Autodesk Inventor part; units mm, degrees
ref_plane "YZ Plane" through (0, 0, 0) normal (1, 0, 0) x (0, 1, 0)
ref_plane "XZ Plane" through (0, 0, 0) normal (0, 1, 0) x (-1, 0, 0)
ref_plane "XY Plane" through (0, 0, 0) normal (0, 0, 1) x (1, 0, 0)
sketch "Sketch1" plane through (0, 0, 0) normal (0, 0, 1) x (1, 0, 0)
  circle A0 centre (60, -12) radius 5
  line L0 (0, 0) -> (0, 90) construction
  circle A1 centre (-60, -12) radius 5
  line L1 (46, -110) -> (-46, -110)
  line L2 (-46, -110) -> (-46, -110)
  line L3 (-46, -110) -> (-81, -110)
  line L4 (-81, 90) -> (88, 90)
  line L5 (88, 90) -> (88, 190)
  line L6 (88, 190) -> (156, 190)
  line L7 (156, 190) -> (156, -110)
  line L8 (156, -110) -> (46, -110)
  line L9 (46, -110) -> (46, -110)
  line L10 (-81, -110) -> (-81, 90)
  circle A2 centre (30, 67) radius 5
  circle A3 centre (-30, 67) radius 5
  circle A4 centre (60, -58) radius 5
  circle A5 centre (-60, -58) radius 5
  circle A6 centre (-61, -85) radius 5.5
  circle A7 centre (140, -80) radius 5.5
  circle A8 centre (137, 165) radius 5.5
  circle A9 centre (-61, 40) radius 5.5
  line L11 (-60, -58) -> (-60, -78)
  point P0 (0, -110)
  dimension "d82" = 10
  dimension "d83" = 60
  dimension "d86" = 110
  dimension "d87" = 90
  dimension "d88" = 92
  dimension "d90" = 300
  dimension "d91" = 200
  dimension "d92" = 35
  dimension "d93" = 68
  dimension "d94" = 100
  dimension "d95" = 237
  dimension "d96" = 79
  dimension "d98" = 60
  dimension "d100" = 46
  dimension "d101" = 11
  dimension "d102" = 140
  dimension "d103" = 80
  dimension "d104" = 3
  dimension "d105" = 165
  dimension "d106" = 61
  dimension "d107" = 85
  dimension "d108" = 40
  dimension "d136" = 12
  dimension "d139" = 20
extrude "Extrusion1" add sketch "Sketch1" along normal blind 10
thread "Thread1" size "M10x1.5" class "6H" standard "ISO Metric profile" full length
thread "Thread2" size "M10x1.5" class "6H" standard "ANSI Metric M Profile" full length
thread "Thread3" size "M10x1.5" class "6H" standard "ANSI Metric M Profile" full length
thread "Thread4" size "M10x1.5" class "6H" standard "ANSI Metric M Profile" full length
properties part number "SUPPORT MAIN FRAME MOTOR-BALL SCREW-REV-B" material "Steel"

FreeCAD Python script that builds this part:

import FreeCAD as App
import Part
import Sketcher

V = App.Vector

doc = App.newDocument("Part")
body = doc.addObject("PartDesign::Body", "Body")

sketch1 = body.newObject("Sketcher::SketchObject", "Sketch")
sketch1.AttachmentSupport = (doc.getObject("XY_Plane"), [""])
sketch1.MapMode = "FlatFace"
sketch1.addGeometry(Part.LineSegment(V(-81, -110, 0), V(156, -110, 0)), False)
sketch1.addGeometry(Part.LineSegment(V(156, -110, 0), V(156, 190, 0)), False)
sketch1.addGeometry(Part.LineSegment(V(156, 190, 0), V(88, 190, 0)), False)
sketch1.addGeometry(Part.LineSegment(V(88, 190, 0), V(88, 90, 0)), False)
sketch1.addGeometry(Part.LineSegment(V(88, 90, 0), V(-81, 90, 0)), False)
sketch1.addGeometry(Part.LineSegment(V(-81, 90, 0), V(-81, -110, 0)), False)
sketch1.addGeometry(Part.Circle(V(-61, -85, 0), V(0, 0, 1), 6), False)
sketch1.addGeometry(Part.Circle(V(-60, -58, 0), V(0, 0, 1), 5), False)
sketch1.addGeometry(Part.Circle(V(-60, -12, 0), V(0, 0, 1), 5), False)
sketch1.addGeometry(Part.Circle(V(60, -58, 0), V(0, 0, 1), 5), False)
sketch1.addGeometry(Part.Circle(V(140, -80, 0), V(0, 0, 1), 6), False)
sketch1.addGeometry(Part.Circle(V(60, -12, 0), V(0, 0, 1), 5), False)
sketch1.addGeometry(Part.Circle(V(-61, 40, 0), V(0, 0, 1), 6), False)
sketch1.addGeometry(Part.Circle(V(-30, 67, 0), V(0, 0, 1), 5), False)
sketch1.addGeometry(Part.Circle(V(30, 67, 0), V(0, 0, 1), 5), False)
sketch1.addGeometry(Part.Circle(V(137, 165, 0), V(0, 0, 1), 6), False)
sketch1.addConstraint(Sketcher.Constraint("Coincident", 0, 2, 1, 1))
sketch1.addConstraint(Sketcher.Constraint("Coincident", 1, 2, 2, 1))
sketch1.addConstraint(Sketcher.Constraint("Coincident", 2, 2, 3, 1))
sketch1.addConstraint(Sketcher.Constraint("Coincident", 3, 2, 4, 1))
sketch1.addConstraint(Sketcher.Constraint("Coincident", 4, 2, 5, 1))
sketch1.addConstraint(Sketcher.Constraint("Coincident", 5, 2, 0, 1))
sketch1.addConstraint(Sketcher.Constraint("Horizontal", 0))
sketch1.addConstraint(Sketcher.Constraint("Vertical", 1))
sketch1.addConstraint(Sketcher.Constraint("Horizontal", 2))
sketch1.addConstraint(Sketcher.Constraint("Vertical", 3))
sketch1.addConstraint(Sketcher.Constraint("Horizontal", 4))
sketch1.addConstraint(Sketcher.Constraint("Vertical", 5))
sketch1.addConstraint(Sketcher.Constraint("Equal", 7, 8))
sketch1.addConstraint(Sketcher.Constraint("Equal", 8, 9))
sketch1.addConstraint(Sketcher.Constraint("Equal", 6, 10))
sketch1.addConstraint(Sketcher.Constraint("Equal", 9, 11))
sketch1.addConstraint(Sketcher.Constraint("Equal", 10, 12))
sketch1.addConstraint(Sketcher.Constraint("Equal", 11, 13))
sketch1.addConstraint(Sketcher.Constraint("Equal", 13, 14))
sketch1.addConstraint(Sketcher.Constraint("Equal", 12, 15))
sketch1.addConstraint(Sketcher.Constraint("Symmetric", 7, 3, 9, 3, -2))
sketch1.addConstraint(Sketcher.Constraint("Symmetric", 8, 3, 11, 3, -2))
sketch1.addConstraint(Sketcher.Constraint("Symmetric", 13, 3, 14, 3, -2))
sketch1.addConstraint(Sketcher.Constraint("Vertical", 7, 3, 8, 3))
sketch1.addConstraint(Sketcher.Constraint("Vertical", 6, 3, 12, 3))
sketch1.addConstraint(Sketcher.Constraint("Diameter", 6, 11.0))
sketch1.addConstraint(Sketcher.Constraint("Diameter", 7, 10.0))
sketch1.addConstraint(Sketcher.Constraint("DistanceX", 0, 1, 0, 2, 237.0))
sketch1.addConstraint(Sketcher.Constraint("DistanceX", 2, 2, 2, 1, 68.0))
sketch1.addConstraint(Sketcher.Constraint("DistanceY", 1, 1, 1, 2, 300.0))
sketch1.addConstraint(Sketcher.Constraint("DistanceY", 3, 2, 3, 1, 100.0))
sketch1.addConstraint(Sketcher.Constraint("DistanceX", 6, 3, -1, 1, 61.0))
sketch1.addConstraint(Sketcher.Constraint("DistanceY", 6, 3, -1, 1, 85.0))
sketch1.addConstraint(Sketcher.Constraint("DistanceX", 7, 3, -1, 1, 60.0))
sketch1.addConstraint(Sketcher.Constraint("DistanceY", 8, 3, -1, 1, 12.0))
sketch1.addConstraint(Sketcher.Constraint("DistanceX", -1, 1, 10, 3, 140.0))
sketch1.addConstraint(Sketcher.Constraint("DistanceY", 10, 3, -1, 1, 80.0))
sketch1.addConstraint(Sketcher.Constraint("DistanceY", -1, 1, 12, 3, 40.0))
sketch1.addConstraint(Sketcher.Constraint("DistanceY", -1, 1, 15, 3, 165.0))
sketch1.addConstraint(Sketcher.Constraint("DistanceY", 0, 2, -1, 1, 110.0))
sketch1.addConstraint(Sketcher.Constraint("DistanceY", 7, 3, 8, 3, 46.0))
sketch1.addConstraint(Sketcher.Constraint("DistanceY", 8, 3, 13, 3, 79.0))
sketch1.addConstraint(Sketcher.Constraint("DistanceX", 13, 3, 11, 3, 90.0))
sketch1.addConstraint(Sketcher.Constraint("DistanceX", 4, 2, 12, 3, 20.0))
sketch1.addConstraint(Sketcher.Constraint("DistanceX", -1, 1, 15, 3, 137.0))
pad1 = body.newObject("PartDesign::Pad", "Pad")
pad1.Profile = sketch1
pad1.Length = 10

doc.recompute()
